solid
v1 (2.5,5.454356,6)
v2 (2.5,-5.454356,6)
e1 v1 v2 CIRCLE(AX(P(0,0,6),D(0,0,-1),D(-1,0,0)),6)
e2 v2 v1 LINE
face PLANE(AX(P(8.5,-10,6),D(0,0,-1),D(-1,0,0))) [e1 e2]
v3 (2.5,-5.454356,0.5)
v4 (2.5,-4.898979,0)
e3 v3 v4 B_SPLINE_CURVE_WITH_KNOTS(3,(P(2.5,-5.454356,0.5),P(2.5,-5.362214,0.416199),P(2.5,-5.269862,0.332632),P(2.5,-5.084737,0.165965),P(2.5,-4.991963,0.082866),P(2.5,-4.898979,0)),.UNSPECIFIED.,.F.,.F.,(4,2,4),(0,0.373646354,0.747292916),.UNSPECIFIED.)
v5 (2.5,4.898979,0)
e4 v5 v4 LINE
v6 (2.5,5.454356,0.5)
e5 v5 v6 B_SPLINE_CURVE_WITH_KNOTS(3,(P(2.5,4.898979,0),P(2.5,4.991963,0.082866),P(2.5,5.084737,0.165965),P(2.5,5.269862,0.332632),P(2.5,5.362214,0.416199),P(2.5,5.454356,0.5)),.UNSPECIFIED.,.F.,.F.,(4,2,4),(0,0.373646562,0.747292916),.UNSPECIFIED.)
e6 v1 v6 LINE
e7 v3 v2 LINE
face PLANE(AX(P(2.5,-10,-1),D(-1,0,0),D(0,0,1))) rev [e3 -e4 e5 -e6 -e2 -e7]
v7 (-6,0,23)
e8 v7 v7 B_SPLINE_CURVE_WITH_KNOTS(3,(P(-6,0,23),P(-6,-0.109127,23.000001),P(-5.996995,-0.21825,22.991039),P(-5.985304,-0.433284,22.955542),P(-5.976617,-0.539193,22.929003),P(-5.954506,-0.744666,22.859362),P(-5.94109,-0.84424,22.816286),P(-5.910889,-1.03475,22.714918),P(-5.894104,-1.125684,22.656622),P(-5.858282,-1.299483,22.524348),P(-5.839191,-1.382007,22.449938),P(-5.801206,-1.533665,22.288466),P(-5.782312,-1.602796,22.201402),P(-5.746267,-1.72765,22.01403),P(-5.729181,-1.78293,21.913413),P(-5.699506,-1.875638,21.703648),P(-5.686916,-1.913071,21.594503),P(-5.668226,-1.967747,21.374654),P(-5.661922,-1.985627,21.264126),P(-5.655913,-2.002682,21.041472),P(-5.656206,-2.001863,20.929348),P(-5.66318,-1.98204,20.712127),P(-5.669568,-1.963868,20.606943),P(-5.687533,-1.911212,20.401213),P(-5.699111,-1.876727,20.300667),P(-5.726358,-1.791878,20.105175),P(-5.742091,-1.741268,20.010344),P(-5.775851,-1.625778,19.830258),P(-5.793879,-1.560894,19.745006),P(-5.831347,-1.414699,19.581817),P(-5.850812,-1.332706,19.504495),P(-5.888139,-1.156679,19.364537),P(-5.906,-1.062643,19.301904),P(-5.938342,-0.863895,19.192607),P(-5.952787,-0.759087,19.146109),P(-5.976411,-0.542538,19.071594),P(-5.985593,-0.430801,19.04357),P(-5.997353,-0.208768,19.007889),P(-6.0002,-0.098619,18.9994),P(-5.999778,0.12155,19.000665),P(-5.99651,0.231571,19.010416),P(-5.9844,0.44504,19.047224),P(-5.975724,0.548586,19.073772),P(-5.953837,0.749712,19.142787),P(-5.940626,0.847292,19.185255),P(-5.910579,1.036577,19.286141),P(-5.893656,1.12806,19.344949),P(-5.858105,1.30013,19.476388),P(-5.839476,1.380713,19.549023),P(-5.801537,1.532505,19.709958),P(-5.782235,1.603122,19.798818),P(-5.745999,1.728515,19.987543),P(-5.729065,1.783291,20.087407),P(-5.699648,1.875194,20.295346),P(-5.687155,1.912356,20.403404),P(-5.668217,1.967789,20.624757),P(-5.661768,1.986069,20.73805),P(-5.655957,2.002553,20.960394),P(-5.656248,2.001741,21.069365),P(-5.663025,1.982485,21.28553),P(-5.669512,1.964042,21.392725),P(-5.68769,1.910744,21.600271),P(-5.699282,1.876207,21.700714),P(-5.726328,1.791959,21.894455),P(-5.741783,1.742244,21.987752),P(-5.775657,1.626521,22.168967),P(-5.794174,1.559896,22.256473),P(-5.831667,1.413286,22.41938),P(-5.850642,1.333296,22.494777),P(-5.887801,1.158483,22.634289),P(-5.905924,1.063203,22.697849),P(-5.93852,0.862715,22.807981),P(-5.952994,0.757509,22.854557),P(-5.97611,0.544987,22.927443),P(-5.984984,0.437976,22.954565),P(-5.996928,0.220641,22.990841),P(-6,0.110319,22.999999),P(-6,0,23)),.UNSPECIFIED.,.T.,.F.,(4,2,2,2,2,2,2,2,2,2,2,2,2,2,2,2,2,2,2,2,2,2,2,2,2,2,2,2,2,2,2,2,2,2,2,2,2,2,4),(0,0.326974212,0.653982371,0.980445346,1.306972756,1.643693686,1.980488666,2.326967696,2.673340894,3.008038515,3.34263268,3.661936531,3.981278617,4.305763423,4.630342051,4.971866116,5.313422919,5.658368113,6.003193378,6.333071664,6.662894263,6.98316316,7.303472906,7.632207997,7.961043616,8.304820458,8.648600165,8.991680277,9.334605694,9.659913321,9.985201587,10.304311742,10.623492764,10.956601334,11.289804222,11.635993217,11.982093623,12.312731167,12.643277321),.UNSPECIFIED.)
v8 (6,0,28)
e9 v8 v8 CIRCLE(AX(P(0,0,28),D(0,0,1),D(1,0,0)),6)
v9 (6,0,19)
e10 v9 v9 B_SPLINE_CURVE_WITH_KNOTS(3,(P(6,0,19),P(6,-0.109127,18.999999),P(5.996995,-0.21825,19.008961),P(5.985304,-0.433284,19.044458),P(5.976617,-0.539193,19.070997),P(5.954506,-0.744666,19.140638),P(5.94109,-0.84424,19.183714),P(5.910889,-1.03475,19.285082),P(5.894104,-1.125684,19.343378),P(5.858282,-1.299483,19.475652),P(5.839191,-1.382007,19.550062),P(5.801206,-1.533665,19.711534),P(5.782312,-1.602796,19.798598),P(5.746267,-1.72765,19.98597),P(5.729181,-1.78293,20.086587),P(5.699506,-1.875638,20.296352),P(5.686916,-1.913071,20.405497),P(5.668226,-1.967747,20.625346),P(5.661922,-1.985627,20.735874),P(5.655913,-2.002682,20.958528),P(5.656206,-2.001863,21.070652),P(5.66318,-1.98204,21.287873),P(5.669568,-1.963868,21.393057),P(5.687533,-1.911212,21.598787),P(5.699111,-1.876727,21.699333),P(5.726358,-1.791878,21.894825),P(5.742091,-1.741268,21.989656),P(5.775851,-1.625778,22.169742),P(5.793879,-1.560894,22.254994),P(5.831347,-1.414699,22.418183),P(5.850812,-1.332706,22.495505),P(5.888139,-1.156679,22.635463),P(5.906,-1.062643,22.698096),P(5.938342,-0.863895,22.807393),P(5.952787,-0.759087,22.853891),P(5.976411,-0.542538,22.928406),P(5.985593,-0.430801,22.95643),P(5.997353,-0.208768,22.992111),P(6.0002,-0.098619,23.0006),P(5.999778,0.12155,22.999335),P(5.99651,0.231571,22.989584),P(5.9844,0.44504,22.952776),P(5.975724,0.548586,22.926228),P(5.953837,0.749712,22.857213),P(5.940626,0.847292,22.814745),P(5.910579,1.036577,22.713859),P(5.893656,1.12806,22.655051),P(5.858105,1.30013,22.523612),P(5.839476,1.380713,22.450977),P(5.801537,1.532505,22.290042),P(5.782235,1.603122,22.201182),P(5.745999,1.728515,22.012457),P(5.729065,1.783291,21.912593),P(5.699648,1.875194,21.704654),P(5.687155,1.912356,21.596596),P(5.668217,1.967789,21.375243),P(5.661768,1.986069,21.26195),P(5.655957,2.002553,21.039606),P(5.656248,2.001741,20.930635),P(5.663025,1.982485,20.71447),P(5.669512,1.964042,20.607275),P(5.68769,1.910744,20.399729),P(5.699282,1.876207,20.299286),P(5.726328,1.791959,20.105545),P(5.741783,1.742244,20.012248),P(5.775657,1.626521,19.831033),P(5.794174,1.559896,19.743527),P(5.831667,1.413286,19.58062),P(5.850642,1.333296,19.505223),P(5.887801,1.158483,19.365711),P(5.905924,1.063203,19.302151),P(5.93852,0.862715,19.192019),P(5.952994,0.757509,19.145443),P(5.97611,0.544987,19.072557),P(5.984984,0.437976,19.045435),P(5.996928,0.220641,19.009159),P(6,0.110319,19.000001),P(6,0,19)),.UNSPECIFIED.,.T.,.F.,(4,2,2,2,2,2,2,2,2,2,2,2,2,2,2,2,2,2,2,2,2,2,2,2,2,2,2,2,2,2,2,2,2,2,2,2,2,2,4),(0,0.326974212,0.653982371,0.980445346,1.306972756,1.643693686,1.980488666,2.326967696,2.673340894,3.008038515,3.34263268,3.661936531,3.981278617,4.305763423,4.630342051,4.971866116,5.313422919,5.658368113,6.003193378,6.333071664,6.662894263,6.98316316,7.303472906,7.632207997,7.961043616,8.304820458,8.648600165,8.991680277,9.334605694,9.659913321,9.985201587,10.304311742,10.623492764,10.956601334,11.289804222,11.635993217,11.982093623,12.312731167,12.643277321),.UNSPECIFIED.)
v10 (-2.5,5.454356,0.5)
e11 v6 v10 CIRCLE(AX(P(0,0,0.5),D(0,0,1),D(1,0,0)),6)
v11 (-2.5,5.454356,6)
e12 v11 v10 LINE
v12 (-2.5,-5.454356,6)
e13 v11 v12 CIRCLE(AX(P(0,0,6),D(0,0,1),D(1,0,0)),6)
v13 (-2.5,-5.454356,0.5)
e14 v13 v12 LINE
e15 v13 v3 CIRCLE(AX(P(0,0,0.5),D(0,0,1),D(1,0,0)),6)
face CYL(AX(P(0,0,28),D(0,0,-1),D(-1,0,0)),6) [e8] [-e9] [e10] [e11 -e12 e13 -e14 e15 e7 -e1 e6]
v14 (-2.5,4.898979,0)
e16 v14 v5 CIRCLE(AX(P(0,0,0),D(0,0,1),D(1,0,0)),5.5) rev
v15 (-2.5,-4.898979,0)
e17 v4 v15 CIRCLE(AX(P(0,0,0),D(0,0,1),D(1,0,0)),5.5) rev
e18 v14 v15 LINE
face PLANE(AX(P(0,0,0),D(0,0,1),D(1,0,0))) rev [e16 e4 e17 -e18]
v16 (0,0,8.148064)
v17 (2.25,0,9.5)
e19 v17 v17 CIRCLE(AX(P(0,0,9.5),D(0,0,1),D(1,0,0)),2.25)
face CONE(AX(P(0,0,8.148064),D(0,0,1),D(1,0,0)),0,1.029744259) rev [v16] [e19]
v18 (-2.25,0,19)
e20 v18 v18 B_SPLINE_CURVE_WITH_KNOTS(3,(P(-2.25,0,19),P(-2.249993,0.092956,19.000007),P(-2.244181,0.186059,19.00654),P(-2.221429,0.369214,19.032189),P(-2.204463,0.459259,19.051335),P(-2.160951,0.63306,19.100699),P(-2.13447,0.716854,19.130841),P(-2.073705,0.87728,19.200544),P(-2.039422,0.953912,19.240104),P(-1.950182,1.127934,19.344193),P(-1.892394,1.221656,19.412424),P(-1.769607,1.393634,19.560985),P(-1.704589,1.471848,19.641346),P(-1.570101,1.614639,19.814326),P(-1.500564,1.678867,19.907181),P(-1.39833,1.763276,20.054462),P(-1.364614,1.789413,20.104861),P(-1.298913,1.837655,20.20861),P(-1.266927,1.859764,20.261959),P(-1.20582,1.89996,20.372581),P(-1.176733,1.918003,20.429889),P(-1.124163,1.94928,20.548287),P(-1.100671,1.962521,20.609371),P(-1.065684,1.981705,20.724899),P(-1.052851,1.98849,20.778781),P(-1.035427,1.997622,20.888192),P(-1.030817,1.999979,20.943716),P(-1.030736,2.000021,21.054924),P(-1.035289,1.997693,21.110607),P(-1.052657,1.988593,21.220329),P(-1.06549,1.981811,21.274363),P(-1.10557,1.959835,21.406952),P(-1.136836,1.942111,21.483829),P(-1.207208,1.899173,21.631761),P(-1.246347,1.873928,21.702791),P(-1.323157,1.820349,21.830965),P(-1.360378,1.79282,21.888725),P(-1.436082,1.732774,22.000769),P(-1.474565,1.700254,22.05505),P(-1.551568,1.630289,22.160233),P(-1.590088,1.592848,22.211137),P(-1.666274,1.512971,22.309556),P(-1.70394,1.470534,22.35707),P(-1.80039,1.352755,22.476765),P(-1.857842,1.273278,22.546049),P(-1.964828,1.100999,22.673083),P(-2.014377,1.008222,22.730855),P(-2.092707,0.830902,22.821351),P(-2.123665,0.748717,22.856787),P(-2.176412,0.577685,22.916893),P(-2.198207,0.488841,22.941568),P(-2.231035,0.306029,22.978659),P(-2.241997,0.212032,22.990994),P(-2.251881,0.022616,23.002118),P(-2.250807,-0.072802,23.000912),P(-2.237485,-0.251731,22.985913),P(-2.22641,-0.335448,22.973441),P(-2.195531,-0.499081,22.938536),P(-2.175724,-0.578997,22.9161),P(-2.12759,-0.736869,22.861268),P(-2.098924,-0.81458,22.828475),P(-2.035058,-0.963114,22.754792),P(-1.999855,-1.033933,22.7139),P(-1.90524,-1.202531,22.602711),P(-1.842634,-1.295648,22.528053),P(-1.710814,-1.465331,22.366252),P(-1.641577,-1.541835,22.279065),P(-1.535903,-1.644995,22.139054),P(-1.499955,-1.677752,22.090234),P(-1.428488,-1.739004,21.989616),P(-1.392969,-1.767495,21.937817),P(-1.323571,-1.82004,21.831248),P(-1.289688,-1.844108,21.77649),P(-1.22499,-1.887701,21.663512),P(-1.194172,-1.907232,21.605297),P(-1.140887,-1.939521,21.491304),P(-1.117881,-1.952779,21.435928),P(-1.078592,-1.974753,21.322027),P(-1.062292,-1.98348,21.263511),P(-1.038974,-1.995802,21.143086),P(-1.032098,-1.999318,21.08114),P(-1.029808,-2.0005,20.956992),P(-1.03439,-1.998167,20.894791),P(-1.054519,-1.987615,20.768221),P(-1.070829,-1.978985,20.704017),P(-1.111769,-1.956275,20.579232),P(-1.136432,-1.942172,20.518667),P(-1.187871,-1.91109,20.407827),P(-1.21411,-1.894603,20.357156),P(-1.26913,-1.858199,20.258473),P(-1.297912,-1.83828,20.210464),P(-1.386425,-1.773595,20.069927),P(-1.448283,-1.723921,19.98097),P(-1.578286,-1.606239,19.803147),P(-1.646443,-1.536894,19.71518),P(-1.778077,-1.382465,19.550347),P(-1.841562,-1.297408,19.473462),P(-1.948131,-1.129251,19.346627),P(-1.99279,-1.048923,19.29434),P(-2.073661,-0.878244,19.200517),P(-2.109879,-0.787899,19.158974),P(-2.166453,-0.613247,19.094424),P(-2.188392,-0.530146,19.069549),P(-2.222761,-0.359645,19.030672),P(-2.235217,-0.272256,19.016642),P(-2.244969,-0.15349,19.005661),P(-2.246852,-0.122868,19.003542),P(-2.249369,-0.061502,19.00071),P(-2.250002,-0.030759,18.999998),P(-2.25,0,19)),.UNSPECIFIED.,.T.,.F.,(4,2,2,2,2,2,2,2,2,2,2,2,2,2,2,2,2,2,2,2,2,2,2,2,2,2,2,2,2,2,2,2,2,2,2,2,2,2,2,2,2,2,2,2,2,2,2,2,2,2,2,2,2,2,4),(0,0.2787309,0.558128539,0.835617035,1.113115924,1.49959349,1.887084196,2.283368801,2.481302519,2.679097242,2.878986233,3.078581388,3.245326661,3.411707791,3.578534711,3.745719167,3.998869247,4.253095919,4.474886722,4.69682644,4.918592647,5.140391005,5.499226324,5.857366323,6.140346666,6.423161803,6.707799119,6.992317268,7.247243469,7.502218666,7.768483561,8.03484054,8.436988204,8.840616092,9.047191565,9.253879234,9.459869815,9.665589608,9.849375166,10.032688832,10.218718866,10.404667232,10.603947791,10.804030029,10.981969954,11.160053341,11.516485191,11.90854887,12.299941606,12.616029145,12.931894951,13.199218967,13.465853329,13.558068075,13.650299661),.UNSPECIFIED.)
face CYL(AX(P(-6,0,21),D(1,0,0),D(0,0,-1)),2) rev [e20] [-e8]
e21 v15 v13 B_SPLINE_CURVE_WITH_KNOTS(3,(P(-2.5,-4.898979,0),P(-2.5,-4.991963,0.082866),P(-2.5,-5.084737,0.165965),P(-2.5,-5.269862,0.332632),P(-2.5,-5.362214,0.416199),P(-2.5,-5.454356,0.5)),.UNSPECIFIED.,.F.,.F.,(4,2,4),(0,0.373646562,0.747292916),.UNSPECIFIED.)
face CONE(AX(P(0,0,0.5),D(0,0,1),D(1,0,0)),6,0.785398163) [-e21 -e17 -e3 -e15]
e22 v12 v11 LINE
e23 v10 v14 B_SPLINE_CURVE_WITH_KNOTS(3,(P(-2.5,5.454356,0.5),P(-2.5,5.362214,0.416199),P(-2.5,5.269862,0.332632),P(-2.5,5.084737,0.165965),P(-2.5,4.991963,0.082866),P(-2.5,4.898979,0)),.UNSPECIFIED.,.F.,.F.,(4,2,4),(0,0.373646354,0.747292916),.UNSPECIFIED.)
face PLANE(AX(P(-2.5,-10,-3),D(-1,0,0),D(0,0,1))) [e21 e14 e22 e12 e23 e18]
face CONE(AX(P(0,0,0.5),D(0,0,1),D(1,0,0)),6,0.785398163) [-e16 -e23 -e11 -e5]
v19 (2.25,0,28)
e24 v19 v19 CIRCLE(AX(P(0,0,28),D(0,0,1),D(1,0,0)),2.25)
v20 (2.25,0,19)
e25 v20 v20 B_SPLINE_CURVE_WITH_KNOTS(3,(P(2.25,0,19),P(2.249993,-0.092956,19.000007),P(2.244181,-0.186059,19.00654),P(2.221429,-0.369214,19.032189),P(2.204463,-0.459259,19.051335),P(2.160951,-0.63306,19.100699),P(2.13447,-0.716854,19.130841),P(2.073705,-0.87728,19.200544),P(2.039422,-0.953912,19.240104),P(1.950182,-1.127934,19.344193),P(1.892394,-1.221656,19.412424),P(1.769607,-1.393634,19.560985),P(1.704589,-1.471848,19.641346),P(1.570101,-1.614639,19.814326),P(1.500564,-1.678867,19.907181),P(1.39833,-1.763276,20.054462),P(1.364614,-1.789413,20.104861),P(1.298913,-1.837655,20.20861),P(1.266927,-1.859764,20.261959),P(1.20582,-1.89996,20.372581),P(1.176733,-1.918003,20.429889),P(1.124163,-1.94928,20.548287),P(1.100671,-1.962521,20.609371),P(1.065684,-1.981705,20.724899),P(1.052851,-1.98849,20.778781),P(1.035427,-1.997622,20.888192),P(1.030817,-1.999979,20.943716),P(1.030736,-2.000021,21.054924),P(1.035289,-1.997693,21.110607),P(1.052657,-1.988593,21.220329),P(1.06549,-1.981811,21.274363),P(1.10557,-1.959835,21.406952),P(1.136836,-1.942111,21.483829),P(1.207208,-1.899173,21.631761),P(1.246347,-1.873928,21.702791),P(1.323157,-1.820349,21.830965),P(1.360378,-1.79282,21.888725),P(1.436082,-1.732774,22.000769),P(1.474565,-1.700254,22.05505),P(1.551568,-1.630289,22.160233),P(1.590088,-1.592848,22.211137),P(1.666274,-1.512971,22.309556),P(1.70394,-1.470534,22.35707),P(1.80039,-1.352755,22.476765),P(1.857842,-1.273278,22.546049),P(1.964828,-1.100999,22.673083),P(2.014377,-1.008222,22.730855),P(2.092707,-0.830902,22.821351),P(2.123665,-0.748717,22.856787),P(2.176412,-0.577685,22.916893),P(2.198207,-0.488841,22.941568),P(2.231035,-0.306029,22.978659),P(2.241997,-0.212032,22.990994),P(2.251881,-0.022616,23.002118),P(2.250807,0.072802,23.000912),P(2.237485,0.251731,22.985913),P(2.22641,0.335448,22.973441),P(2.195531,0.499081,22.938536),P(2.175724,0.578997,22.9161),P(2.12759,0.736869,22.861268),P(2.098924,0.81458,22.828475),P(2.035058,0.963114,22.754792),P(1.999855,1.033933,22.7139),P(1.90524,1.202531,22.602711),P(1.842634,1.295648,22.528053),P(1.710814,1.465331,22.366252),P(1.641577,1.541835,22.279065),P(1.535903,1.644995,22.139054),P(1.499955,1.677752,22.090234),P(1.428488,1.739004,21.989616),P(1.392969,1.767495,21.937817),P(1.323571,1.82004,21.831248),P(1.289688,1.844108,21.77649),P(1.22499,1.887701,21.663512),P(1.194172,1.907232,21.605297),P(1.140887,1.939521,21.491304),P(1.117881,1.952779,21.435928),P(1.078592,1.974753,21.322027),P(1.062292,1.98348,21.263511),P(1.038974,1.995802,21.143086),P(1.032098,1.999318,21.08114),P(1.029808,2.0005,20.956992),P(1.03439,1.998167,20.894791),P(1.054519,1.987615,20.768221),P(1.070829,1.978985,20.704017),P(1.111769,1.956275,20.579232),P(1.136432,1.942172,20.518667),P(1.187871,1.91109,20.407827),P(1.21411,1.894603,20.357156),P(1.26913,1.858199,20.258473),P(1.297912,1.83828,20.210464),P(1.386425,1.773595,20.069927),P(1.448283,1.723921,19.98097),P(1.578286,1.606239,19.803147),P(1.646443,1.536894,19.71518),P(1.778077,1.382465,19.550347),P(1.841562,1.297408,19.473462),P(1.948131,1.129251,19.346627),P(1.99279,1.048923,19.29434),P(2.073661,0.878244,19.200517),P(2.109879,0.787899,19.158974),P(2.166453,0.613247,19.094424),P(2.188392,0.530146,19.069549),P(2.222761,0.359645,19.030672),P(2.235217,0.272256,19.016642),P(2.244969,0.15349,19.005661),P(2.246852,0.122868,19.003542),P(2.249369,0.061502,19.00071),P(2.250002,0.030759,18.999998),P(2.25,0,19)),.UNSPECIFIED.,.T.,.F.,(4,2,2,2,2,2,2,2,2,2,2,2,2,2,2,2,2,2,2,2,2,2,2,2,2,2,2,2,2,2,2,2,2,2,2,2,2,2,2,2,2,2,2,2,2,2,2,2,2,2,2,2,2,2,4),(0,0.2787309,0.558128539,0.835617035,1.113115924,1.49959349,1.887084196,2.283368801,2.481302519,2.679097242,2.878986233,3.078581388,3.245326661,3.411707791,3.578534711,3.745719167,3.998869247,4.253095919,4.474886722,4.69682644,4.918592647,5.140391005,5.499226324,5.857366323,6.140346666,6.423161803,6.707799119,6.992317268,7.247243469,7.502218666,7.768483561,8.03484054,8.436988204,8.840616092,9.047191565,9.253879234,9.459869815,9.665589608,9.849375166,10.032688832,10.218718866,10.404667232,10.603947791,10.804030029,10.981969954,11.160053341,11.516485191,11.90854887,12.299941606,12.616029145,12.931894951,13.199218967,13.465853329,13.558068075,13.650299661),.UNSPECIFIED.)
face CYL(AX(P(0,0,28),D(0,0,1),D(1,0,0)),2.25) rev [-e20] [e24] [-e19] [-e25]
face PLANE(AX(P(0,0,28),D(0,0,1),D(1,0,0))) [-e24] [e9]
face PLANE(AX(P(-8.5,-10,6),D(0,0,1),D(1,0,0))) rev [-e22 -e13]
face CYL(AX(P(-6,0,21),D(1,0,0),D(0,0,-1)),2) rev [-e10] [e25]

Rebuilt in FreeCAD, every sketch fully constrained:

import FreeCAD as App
import Part
import Sketcher
Q = App.Units.Quantity


def edges_at(feature, points):
    """Names of the edges that pass closest to the given points."""
    edges = feature.Shape.Edges
    near = lambda p: min(range(len(edges)), key=lambda i: edges[i].distToShape(Part.Vertex(*p))[0])
    return sorted({f"Edge{near(p) + 1}" for p in points})


def add_polygon(sketch, points):
    """Adds a closed chain of lines whose ends are joined by coincident constraints."""
    first, n = sketch.GeometryCount, len(points)
    for a, b in zip(points, points[1:] + points[:1]):
        sketch.addGeometry(Part.LineSegment(App.Vector(*a, 0), App.Vector(*b, 0)), False)
    for i in range(n):
        sketch.addConstraint(Sketcher.Constraint("Coincident", first + i, 2, first + (i + 1) % n, 1))

doc = App.newDocument("Part")
body = doc.addObject("PartDesign::Body", "Body")

# Sketch on XY plane
sketch1 = doc.addObject("Sketcher::SketchObject", "Sketch")
body.addObject(sketch1)
sketch1.AttachmentSupport = (doc.XY_Plane, [""])
sketch1.MapMode = "FlatFace"
sketch1.addGeometry(Part.Circle(App.Vector(0, 0, 0), App.Vector(0, 0, 1), 6), False)
sketch1.addConstraint([
    Sketcher.Constraint("Coincident", 0, 3, -1, 1),
    Sketcher.Constraint("Diameter", 0, Q("12 mm")),
])
pad1 = doc.addObject("PartDesign::Pad", "Pad")
body.addObject(pad1)
pad1.Profile = sketch1
pad1.Length = 28

# Sketch on XZ plane
sketch2 = doc.addObject("Sketcher::SketchObject", "Sketch001")
body.addObject(sketch2)
sketch2.AttachmentSupport = (doc.XZ_Plane, [""])
sketch2.MapMode = "FlatFace"
add_polygon(sketch2, [(2, -1), (2, 6), (8, 6), (8, -1)])  # lines 0-3
add_polygon(sketch2, [(-8, -3), (-8, 6), (-2, 6), (-2, -3)])  # lines 4-7
sketch2.addConstraint([
    Sketcher.Constraint("Vertical", 0),
    Sketcher.Constraint("Horizontal", 1),
    Sketcher.Constraint("Vertical", 2),
    Sketcher.Constraint("Horizontal", 3),
    Sketcher.Constraint("Vertical", 4),
    Sketcher.Constraint("Horizontal", 5),
    Sketcher.Constraint("Vertical", 6),
    Sketcher.Constraint("Horizontal", 7),
    Sketcher.Constraint("Symmetric", 1, 2, 4, 2, -2),
    Sketcher.Constraint("Equal", 3, 5),
    Sketcher.Constraint("DistanceX", 1, 1, 1, 2, Q("6 mm")),
    Sketcher.Constraint("DistanceY", 0, 1, 0, 2, Q("7 mm")),
    Sketcher.Constraint("DistanceY", 4, 1, 4, 2, Q("9 mm")),
    Sketcher.Constraint("DistanceY", -1, 1, 0, 2, Q("6 mm")),
    Sketcher.Constraint("DistanceX", 4, 2, 0, 2, Q("11 mm")),
])
pocket1 = doc.addObject("PartDesign::Pocket", "Pocket")
body.addObject(pocket1)
pocket1.Profile = sketch2
pocket1.Type = "ThroughAll"
pocket1.Midplane = True
doc.recompute()

chamfer = doc.addObject("PartDesign::Chamfer", "Chamfer")
body.addObject(chamfer)
chamfer.Base = (pocket1, edges_at(pocket1, [(0, -6, 0), (0, 6, 0)]))
chamfer.Size = 0.5

# Sketch on XY plane
sketch3 = doc.addObject("Sketcher::SketchObject", "Sketch002")
body.addObject(sketch3)
sketch3.AttachmentSupport = (doc.XY_Plane, [""])
sketch3.MapMode = "FlatFace"
sketch3.AttachmentOffset = App.Placement(App.Vector(0, 0, 28), App.Rotation())
sketch3.addGeometry(Part.Circle(App.Vector(0, 0, 0), App.Vector(0, 0, 1), 2.2), False)
sketch3.addConstraint([
    Sketcher.Constraint("Coincident", 0, 3, -1, 1),
    Sketcher.Constraint("Diameter", 0, Q("4.5 mm")),
])
doc.recompute()
hole = doc.addObject("PartDesign::Hole", "Hole")
body.addObject(hole)
hole.Profile = sketch3
hole.ThreadType = "None"
hole.Diameter = 4.5
hole.DepthType = "Dimension"
hole.Depth = 18.5
hole.DrillPoint = "Angled"
hole.DrillPointAngle = 118

# Sketch on YZ plane
sketch4 = doc.addObject("Sketcher::SketchObject", "Sketch003")
body.addObject(sketch4)
sketch4.AttachmentSupport = (doc.YZ_Plane, [""])
sketch4.MapMode = "FlatFace"
sketch4.addGeometry(Part.Circle(App.Vector(0, 21, 0), App.Vector(0, 0, 1), 2), False)
sketch4.addConstraint([
    Sketcher.Constraint("PointOnObject", 0, 3, -2),
    Sketcher.Constraint("Diameter", 0, Q("4 mm")),
    Sketcher.Constraint("DistanceY", -1, 1, 0, 3, Q("21 mm")),
])
pocket2 = doc.addObject("PartDesign::Pocket", "Pocket001")
body.addObject(pocket2)
pocket2.Profile = sketch4
pocket2.Type = "ThroughAll"
pocket2.Midplane = True

doc.recompute()
